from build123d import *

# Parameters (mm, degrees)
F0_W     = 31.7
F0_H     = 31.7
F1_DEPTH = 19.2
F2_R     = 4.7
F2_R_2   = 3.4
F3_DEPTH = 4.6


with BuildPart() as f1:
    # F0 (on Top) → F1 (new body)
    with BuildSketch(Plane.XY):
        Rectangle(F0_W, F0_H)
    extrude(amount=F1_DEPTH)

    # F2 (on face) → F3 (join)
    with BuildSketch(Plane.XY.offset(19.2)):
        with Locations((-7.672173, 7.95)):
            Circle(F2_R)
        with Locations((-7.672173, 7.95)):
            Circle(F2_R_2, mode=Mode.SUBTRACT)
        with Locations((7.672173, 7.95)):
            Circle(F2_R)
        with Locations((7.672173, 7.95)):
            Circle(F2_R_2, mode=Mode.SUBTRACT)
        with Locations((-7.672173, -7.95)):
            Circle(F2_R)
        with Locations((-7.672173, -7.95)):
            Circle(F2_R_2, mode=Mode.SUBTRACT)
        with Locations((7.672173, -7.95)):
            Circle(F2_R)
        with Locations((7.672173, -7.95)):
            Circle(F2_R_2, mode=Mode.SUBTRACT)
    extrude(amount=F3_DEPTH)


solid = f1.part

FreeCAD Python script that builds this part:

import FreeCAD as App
import Part
import Sketcher
Q = App.Units.Quantity


def add_polygon(sketch, points):
    """Adds a closed chain of lines whose ends are joined by coincident constraints."""
    first, n = sketch.GeometryCount, len(points)
    for a, b in zip(points, points[1:] + points[:1]):
        sketch.addGeometry(Part.LineSegment(App.Vector(*a, 0), App.Vector(*b, 0)), False)
    for i in range(n):
        sketch.addConstraint(Sketcher.Constraint("Coincident", first + i, 2, first + (i + 1) % n, 1))

doc = App.newDocument("Part")
params = doc.addObject("Spreadsheet::Sheet", "Params")
for row, (alias, value) in enumerate([
    ("sketch1_width", "31.7 mm"),
    ("pad1_length", "19.2 mm"),
    ("sketch2_diameter", "9.4 mm"),
    ("sketch2_diameter2", "6.8 mm"),
    ("pad2_length", "4.6 mm"),
], start=1):
    params.set(f"A{row}", alias)
    params.set(f"B{row}", "=" + value)
    params.setAlias(f"B{row}", alias)

body = doc.addObject("PartDesign::Body", "Body")

sketch1 = body.newObject("Sketcher::SketchObject", "Sketch")
sketch1.AttachmentSupport = (doc.getObject("XY_Plane"), [""])
sketch1.MapMode = "FlatFace"
add_polygon(sketch1, [(-15.85, 15.85), (-15.85, -15.85), (15.85, -15.85), (15.85, 15.85)])
sketch1.addConstraint([
    Sketcher.Constraint("Vertical", 0),
    Sketcher.Constraint("Horizontal", 1),
    Sketcher.Constraint("Vertical", 2),
    Sketcher.Constraint("Horizontal", 3),
    Sketcher.Constraint("Symmetric", 0, 2, 2, 2, -1, 1),
    Sketcher.Constraint("Equal", 3, 0),
    Sketcher.Constraint("DistanceX", 1, 1, 1, 2, Q("31.7 mm")),
])
sketch1.setExpression("Constraints[10]", "Params.sketch1_width")
pad1 = body.newObject("PartDesign::Pad", "Pad")
pad1.Profile = sketch1
pad1.setExpression("Length", "Params.pad1_length")

sketch2 = body.newObject("Sketcher::SketchObject", "Sketch001")
sketch2.AttachmentSupport = (doc.getObject("XY_Plane"), [""])
sketch2.MapMode = "FlatFace"
sketch2.AttachmentOffset = App.Placement(App.Vector(0, 0, 19.2), App.Rotation())
sketch2.addGeometry([
    Part.Circle(App.Vector(-7.672173, 7.95, 0), App.Vector(0, 0, 1), 4.7),
    Part.Circle(App.Vector(-7.672173, 7.95, 0), App.Vector(0, 0, 1), 3.4),
    Part.Circle(App.Vector(7.672173, 7.95, 0), App.Vector(0, 0, 1), 4.7),
    Part.Circle(App.Vector(7.672173, 7.95, 0), App.Vector(0, 0, 1), 3.4),
    Part.Circle(App.Vector(-7.672173, -7.95, 0), App.Vector(0, 0, 1), 4.7),
    Part.Circle(App.Vector(-7.672173, -7.95, 0), App.Vector(0, 0, 1), 3.4),
    Part.Circle(App.Vector(7.672173, -7.95, 0), App.Vector(0, 0, 1), 4.7),
    Part.Circle(App.Vector(7.672173, -7.95, 0), App.Vector(0, 0, 1), 3.4),
], False)
sketch2.addConstraint([
    Sketcher.Constraint("Coincident", 1, 3, 0, 3),
    Sketcher.Constraint("Coincident", 3, 3, 2, 3),
    Sketcher.Constraint("Coincident", 5, 3, 4, 3),
    Sketcher.Constraint("Coincident", 7, 3, 6, 3),
    Sketcher.Constraint("Equal", 0, 2),
    Sketcher.Constraint("Equal", 1, 3),
    Sketcher.Constraint("Equal", 2, 4),
    Sketcher.Constraint("Equal", 3, 5),
    Sketcher.Constraint("Equal", 4, 6),
    Sketcher.Constraint("Equal", 5, 7),
    Sketcher.Constraint("Symmetric", 2, 3, 4, 3, -1, 1),
    Sketcher.Constraint("Symmetric", 0, 3, 6, 3, -1, 1),
    Sketcher.Constraint("Symmetric", 0, 3, 2, 3, -2),
    Sketcher.Constraint("Diameter", 0, Q("9.4 mm")),
    Sketcher.Constraint("Diameter", 1, Q("6.8 mm")),
    Sketcher.Constraint("DistanceY", 4, 3, 0, 3, Q("15.9 mm")),
    Sketcher.Constraint("DistanceX", 0, 3, -1, 1, Q("7.672173 mm")),
])
sketch2.setExpression("Constraints[13]", "Params.sketch2_diameter")
sketch2.setExpression("Constraints[14]", "Params.sketch2_diameter2")
pad2 = body.newObject("PartDesign::Pad", "Pad001")
pad2.Profile = sketch2
pad2.setExpression("Length", "Params.pad2_length")

doc.recompute()
